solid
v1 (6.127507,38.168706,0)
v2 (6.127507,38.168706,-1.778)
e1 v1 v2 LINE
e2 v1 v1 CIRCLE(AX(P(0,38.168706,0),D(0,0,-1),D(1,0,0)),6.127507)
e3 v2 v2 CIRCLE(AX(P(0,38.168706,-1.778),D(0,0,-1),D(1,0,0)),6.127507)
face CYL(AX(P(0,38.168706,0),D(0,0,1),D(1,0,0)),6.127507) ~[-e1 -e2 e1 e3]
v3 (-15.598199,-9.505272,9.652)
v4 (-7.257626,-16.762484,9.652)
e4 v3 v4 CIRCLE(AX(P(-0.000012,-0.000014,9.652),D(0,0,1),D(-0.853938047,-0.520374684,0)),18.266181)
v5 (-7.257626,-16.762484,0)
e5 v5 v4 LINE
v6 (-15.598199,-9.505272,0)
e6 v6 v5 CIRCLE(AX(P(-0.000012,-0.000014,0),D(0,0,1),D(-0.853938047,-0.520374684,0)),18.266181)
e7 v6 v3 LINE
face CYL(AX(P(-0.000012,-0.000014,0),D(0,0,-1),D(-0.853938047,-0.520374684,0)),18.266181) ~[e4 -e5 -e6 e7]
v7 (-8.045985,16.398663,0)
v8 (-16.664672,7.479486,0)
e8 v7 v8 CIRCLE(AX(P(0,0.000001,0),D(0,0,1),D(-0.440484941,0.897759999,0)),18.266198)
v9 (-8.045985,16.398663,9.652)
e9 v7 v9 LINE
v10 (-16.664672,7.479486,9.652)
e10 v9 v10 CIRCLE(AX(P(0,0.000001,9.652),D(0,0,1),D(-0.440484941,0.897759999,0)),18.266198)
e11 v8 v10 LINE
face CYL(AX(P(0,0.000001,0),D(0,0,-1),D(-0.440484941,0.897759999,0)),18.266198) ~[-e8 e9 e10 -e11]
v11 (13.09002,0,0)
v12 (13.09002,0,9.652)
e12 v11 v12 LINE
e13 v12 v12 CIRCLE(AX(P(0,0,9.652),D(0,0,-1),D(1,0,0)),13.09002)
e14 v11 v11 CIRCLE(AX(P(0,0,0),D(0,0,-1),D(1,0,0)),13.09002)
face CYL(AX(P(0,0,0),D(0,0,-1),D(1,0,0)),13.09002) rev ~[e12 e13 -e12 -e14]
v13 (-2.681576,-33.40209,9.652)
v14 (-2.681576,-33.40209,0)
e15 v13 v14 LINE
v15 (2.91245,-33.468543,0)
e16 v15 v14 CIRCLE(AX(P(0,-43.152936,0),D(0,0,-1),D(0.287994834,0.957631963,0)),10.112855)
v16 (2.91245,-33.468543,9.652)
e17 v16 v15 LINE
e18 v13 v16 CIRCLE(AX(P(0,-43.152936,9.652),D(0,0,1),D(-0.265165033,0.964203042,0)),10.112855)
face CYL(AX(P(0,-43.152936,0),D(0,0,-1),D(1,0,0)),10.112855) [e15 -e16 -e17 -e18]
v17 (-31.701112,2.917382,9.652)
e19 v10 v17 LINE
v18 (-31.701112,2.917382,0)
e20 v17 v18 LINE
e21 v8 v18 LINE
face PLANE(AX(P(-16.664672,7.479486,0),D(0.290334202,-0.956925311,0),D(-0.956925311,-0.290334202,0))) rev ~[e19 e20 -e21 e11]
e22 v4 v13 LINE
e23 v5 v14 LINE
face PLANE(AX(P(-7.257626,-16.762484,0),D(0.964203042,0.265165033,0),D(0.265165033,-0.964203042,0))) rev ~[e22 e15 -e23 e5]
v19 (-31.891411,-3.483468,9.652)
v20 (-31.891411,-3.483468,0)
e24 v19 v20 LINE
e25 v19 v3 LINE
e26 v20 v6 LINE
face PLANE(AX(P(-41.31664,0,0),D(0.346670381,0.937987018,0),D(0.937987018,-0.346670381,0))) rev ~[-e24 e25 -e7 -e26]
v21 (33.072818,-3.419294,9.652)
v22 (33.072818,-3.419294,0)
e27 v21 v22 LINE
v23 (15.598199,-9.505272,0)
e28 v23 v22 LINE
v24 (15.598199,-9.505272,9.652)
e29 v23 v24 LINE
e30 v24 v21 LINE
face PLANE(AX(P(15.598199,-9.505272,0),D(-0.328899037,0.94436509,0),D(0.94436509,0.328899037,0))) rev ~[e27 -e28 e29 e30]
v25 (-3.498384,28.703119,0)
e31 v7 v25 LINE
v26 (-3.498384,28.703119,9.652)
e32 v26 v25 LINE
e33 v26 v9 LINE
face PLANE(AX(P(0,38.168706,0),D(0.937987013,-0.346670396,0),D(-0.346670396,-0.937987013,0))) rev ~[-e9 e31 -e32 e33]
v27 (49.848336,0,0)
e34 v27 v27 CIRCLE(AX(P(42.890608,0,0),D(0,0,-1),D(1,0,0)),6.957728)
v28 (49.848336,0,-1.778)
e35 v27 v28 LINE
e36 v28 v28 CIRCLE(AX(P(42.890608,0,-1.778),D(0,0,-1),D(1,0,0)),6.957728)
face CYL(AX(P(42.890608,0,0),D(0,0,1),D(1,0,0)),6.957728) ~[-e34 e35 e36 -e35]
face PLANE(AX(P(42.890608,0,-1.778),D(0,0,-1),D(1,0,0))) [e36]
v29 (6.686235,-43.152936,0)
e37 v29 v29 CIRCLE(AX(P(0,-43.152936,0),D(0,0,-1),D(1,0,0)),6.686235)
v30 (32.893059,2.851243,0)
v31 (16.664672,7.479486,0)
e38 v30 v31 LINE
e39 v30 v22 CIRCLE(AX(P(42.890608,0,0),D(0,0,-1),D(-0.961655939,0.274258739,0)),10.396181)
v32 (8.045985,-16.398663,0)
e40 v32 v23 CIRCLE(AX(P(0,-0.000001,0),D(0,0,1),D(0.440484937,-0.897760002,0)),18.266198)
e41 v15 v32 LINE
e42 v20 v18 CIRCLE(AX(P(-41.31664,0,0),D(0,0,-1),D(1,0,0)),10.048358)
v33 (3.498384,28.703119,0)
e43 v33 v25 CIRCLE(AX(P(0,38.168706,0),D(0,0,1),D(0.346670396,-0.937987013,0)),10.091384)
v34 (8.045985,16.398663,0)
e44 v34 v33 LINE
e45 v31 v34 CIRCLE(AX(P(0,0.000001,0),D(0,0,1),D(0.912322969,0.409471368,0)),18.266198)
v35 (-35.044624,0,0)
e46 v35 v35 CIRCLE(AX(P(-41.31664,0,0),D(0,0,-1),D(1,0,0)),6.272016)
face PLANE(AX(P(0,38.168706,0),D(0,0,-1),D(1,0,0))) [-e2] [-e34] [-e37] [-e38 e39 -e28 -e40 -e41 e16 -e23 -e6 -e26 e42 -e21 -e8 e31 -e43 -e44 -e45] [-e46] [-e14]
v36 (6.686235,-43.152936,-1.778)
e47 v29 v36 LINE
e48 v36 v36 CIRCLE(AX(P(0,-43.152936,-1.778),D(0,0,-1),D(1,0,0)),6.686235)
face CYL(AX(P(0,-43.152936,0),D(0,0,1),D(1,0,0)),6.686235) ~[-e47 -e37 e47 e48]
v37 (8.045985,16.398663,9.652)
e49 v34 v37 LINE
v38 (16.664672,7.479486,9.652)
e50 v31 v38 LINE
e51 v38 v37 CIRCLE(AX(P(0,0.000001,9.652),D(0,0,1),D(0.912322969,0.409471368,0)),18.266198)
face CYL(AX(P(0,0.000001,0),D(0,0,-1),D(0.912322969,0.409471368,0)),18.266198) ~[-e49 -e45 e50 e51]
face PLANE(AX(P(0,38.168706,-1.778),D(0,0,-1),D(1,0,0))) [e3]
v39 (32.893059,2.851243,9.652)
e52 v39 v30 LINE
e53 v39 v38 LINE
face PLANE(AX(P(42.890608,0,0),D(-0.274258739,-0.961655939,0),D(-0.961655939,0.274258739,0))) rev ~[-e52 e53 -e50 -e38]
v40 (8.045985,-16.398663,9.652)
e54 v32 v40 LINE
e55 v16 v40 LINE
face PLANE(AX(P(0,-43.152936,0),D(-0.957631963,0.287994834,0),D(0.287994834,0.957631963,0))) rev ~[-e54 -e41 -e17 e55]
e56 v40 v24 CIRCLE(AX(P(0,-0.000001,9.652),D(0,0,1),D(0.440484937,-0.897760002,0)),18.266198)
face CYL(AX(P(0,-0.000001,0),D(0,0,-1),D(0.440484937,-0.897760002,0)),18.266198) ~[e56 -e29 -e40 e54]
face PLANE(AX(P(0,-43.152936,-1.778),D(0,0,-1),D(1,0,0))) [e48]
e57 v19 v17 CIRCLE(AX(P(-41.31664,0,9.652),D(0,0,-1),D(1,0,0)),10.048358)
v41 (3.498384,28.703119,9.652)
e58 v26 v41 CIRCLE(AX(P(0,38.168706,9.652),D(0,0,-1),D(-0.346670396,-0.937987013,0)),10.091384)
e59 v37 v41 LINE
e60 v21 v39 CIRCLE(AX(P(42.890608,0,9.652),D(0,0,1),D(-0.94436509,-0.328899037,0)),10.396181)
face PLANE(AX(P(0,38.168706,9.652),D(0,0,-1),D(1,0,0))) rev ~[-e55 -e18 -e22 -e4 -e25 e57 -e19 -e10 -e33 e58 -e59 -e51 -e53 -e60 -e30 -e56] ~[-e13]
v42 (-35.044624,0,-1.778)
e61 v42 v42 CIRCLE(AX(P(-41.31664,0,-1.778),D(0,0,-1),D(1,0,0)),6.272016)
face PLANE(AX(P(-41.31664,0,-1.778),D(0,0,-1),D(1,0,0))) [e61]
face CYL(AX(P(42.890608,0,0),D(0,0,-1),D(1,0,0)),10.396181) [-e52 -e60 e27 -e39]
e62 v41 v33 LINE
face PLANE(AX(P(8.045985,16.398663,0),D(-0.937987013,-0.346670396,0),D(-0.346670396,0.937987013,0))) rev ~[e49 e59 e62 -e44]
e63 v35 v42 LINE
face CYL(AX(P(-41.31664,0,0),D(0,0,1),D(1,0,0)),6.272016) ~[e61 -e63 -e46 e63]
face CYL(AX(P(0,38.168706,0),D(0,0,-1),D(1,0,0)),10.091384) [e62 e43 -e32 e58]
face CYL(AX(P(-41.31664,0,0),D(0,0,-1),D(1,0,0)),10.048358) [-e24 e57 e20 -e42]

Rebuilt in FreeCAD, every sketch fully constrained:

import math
import FreeCAD as App
import Part
import Sketcher
Q = App.Units.Quantity

doc = App.newDocument("Part")
body = doc.addObject("PartDesign::Body", "Body")

# Sketch on XY plane
sketch1 = doc.addObject("Sketcher::SketchObject", "Sketch")
body.addObject(sketch1)
sketch1.AttachmentSupport = (doc.XY_Plane, [""])
sketch1.MapMode = "FlatFace"
sketch1.addGeometry([
    Part.LineSegment(App.Vector(-17, 7, 0), App.Vector(-41, 0, 0)),  # 0
    Part.LineSegment(App.Vector(-41, 0, 0), App.Vector(-16, -10, 0)),  # 1
    Part.ArcOfCircle(Part.Circle(App.Vector(0, 0, 0), App.Vector(0, 0, 1), 18), math.radians(-149), math.radians(-113)),  # 2
    Part.LineSegment(App.Vector(-7, -17, 0), App.Vector(0, -43, 0)),  # 3
    Part.LineSegment(App.Vector(0, -43, 0), App.Vector(8, -16, 0)),  # 4
    Part.ArcOfCircle(Part.Circle(App.Vector(0, 0, 0), App.Vector(0, 0, 1), 18), math.radians(-64), math.radians(-31)),  # 5
    Part.LineSegment(App.Vector(16, -10, 0), App.Vector(43, 0, 0)),  # 6
    Part.LineSegment(App.Vector(43, 0, 0), App.Vector(17, 7, 0)),  # 7
    Part.ArcOfCircle(Part.Circle(App.Vector(0, 0, 0), App.Vector(0, 0, 1), 18), math.radians(24), math.radians(64)),  # 8
    Part.LineSegment(App.Vector(8, 16, 0), App.Vector(0, 38, 0)),  # 9
    Part.LineSegment(App.Vector(0, 38, 0), App.Vector(-8, 16, 0)),  # 10
    Part.ArcOfCircle(Part.Circle(App.Vector(0, 0, 0), App.Vector(0, 0, 1), 18), math.radians(116), math.radians(156)),  # 11
], False)
sketch1.addConstraint([
    Sketcher.Constraint("Coincident", 0, 2, 1, 1),
    Sketcher.Constraint("Coincident", 1, 2, 2, 1),
    Sketcher.Constraint("Coincident", 2, 2, 3, 1),
    Sketcher.Constraint("Coincident", 3, 2, 4, 1),
    Sketcher.Constraint("Coincident", 4, 2, 5, 1),
    Sketcher.Constraint("Coincident", 5, 2, 6, 1),
    Sketcher.Constraint("Coincident", 6, 2, 7, 1),
    Sketcher.Constraint("Coincident", 7, 2, 8, 1),
    Sketcher.Constraint("Coincident", 8, 2, 9, 1),
    Sketcher.Constraint("Coincident", 9, 2, 10, 1),
    Sketcher.Constraint("Coincident", 10, 2, 11, 1),
    Sketcher.Constraint("Coincident", 11, 2, 0, 1),
    Sketcher.Constraint("Coincident", 5, 3, -1, 1),
    Sketcher.Constraint("Coincident", 8, 3, -1, 1),
    Sketcher.Constraint("Coincident", 11, 3, -1, 1),
    Sketcher.Constraint("Equal", 5, 8),
    Sketcher.Constraint("Equal", 8, 11),
    Sketcher.Constraint("Symmetric", 1, 2, 5, 2, -2),
    Sketcher.Constraint("PointOnObject", 0, 2, -1),
    Sketcher.Constraint("PointOnObject", 3, 2, -2),
    Sketcher.Constraint("PointOnObject", 6, 2, -1),
    Sketcher.Constraint("PointOnObject", 9, 2, -2),
    Sketcher.Constraint("Perpendicular", 1, 10),
    Sketcher.Constraint("Horizontal", 8, 2, 10, 2),
    Sketcher.Constraint("Horizontal", 7, 2, 11, 2),
    Sketcher.Constraint("Vertical", 4, 2, 8, 2),
    Sketcher.Constraint("Radius", 5, 18.266198),
    Sketcher.Constraint("Radius", 2, 18.266181),
    Sketcher.Constraint("DistanceX", 1, 2, -1, 1, 15.598199),
    Sketcher.Constraint("DistanceY", 2, 3, 7, 2, 7.4795),
    Sketcher.Constraint("Distance", 1, 27.41876),
    Sketcher.Constraint("Distance", 4, 27.937949),
    Sketcher.Constraint("Distance", 7, 27.271641),
    Sketcher.Constraint("DistanceX", -1, 1, 7, 2, 16.664672),
    Sketcher.Constraint("DistanceY", 2, 2, 2, 3, 16.76247),
    Sketcher.Constraint("DistanceY", 3, 2, 2, 2, 26.390452),
])
pad1 = doc.addObject("PartDesign::Pad", "Pad")
body.addObject(pad1)
pad1.Profile = sketch1
pad1.Length = Q("0.38 in")

# Sketch on XY plane
sketch2 = doc.addObject("Sketcher::SketchObject", "Sketch001")
body.addObject(sketch2)
sketch2.AttachmentSupport = (doc.XY_Plane, [""])
sketch2.MapMode = "FlatFace"
sketch2.addGeometry(Part.Circle(App.Vector(0, 0, 0), App.Vector(0, 0, 1), 13), False)
sketch2.addConstraint([
    Sketcher.Constraint("Coincident", 0, 3, -1, 1),
    Sketcher.Constraint("Diameter", 0, 26.18004),
])
pocket1 = doc.addObject("PartDesign::Pocket", "Pocket")
body.addObject(pocket1)
pocket1.Profile = sketch2
pocket1.Length = Q("1 in")
pocket1.Reversed = True

# Sketch on XY plane
sketch3 = doc.addObject("Sketcher::SketchObject", "Sketch002")
body.addObject(sketch3)
sketch3.AttachmentSupport = (doc.XY_Plane, [""])
sketch3.MapMode = "FlatFace"
sketch3.addGeometry([
    Part.LineSegment(App.Vector(0, 38, 0), App.Vector(3, 29, 0)),
    Part.ArcOfCircle(Part.Circle(App.Vector(0, 38, 0), App.Vector(0, 0, 1), 10), math.radians(-110), math.radians(-70)),
    Part.LineSegment(App.Vector(-3, 29, 0), App.Vector(0, 38, 0)),
], False)
sketch3.addConstraint([
    Sketcher.Constraint("Coincident", 0, 2, 1, 2),
    Sketcher.Constraint("Coincident", 1, 1, 2, 1),
    Sketcher.Constraint("Coincident", 2, 2, 0, 1),
    Sketcher.Constraint("Coincident", 2, 2, 1, 3),
    Sketcher.Constraint("Symmetric", 0, 2, 1, 1, -2),
    Sketcher.Constraint("Radius", 1, 10.091381),
    Sketcher.Constraint("DistanceY", -1, 1, 0, 2, 28.703119),
    Sketcher.Constraint("DistanceX", 1, 1, 0, 2, 6.996768),
])
pad2 = doc.addObject("PartDesign::Pad", "Pad001")
body.addObject(pad2)
pad2.Profile = sketch3
pad2.Length = Q("0.378 in")

# Sketch on XY plane
sketch4 = doc.addObject("Sketcher::SketchObject", "Sketch003")
body.addObject(sketch4)
sketch4.AttachmentSupport = (doc.XY_Plane, [""])
sketch4.MapMode = "FlatFace"
sketch4.addGeometry([
    Part.Circle(App.Vector(0, 38, 0), App.Vector(0, 0, 1), 10),
    Part.Circle(App.Vector(-41, 0, 0), App.Vector(0, 0, 1), 10),
    Part.Circle(App.Vector(0, -43, 0), App.Vector(0, 0, 1), 10),
    Part.Circle(App.Vector(43, 0, 0), App.Vector(0, 0, 1), 10),
], False)
sketch4.addConstraint([
    Sketcher.Constraint("PointOnObject", 0, 3, -2),
    Sketcher.Constraint("PointOnObject", 1, 3, -1),
    Sketcher.Constraint("PointOnObject", 2, 3, -2),
    Sketcher.Constraint("PointOnObject", 3, 3, -1),
    Sketcher.Constraint("Diameter", 2, 20.22571),
    Sketcher.Constraint("Diameter", 0, 20.182768),
    Sketcher.Constraint("Diameter", 1, 20.096716),
    Sketcher.Constraint("Diameter", 3, 20.792362),
    Sketcher.Constraint("DistanceX", 1, 3, -1, 1, 41.31664),
    Sketcher.Constraint("DistanceY", 2, 3, 0, 3, 81.321642),
    Sketcher.Constraint("DistanceY", -1, 1, 0, 3, 38.168706),
    Sketcher.Constraint("DistanceX", -1, 1, 3, 3, 42.890608),
])
pad3 = doc.addObject("PartDesign::Pad", "Pad002")
body.addObject(pad3)
pad3.Profile = sketch4
pad3.Length = Q("0.38 in")

# Sketch on XY plane
sketch5 = doc.addObject("Sketcher::SketchObject", "Sketch004")
body.addObject(sketch5)
sketch5.AttachmentSupport = (doc.XY_Plane, [""])
sketch5.MapMode = "FlatFace"
sketch5.addGeometry([
    Part.Circle(App.Vector(-41, 0, 0), App.Vector(0, 0, 1), 6),
    Part.Circle(App.Vector(0, 38, 0), App.Vector(0, 0, 1), 6),
    Part.Circle(App.Vector(0, -43, 0), App.Vector(0, 0, 1), 7),
    Part.Circle(App.Vector(43, 0, 0), App.Vector(0, 0, 1), 7),
], False)
sketch5.addConstraint([
    Sketcher.Constraint("PointOnObject", 0, 3, -1),
    Sketcher.Constraint("PointOnObject", 1, 3, -2),
    Sketcher.Constraint("PointOnObject", 2, 3, -2),
    Sketcher.Constraint("PointOnObject", 3, 3, -1),
    Sketcher.Constraint("Diameter", 2, 13.37247),
    Sketcher.Constraint("Diameter", 0, 12.544032),
    Sketcher.Constraint("Diameter", 1, 12.255014),
    Sketcher.Constraint("Diameter", 3, 13.915456),
    Sketcher.Constraint("DistanceX", 0, 3, -1, 1, 41.31664),
    Sketcher.Constraint("DistanceY", 2, 3, 1, 3, 81.321642),
    Sketcher.Constraint("DistanceY", -1, 1, 1, 3, 38.168706),
    Sketcher.Constraint("DistanceX", -1, 1, 3, 3, 42.890608),
])
pad4 = doc.addObject("PartDesign::Pad", "Pad003")
body.addObject(pad4)
pad4.Profile = sketch5
pad4.Length = Q("0.07 in")
pad4.Reversed = True

doc.recompute()
